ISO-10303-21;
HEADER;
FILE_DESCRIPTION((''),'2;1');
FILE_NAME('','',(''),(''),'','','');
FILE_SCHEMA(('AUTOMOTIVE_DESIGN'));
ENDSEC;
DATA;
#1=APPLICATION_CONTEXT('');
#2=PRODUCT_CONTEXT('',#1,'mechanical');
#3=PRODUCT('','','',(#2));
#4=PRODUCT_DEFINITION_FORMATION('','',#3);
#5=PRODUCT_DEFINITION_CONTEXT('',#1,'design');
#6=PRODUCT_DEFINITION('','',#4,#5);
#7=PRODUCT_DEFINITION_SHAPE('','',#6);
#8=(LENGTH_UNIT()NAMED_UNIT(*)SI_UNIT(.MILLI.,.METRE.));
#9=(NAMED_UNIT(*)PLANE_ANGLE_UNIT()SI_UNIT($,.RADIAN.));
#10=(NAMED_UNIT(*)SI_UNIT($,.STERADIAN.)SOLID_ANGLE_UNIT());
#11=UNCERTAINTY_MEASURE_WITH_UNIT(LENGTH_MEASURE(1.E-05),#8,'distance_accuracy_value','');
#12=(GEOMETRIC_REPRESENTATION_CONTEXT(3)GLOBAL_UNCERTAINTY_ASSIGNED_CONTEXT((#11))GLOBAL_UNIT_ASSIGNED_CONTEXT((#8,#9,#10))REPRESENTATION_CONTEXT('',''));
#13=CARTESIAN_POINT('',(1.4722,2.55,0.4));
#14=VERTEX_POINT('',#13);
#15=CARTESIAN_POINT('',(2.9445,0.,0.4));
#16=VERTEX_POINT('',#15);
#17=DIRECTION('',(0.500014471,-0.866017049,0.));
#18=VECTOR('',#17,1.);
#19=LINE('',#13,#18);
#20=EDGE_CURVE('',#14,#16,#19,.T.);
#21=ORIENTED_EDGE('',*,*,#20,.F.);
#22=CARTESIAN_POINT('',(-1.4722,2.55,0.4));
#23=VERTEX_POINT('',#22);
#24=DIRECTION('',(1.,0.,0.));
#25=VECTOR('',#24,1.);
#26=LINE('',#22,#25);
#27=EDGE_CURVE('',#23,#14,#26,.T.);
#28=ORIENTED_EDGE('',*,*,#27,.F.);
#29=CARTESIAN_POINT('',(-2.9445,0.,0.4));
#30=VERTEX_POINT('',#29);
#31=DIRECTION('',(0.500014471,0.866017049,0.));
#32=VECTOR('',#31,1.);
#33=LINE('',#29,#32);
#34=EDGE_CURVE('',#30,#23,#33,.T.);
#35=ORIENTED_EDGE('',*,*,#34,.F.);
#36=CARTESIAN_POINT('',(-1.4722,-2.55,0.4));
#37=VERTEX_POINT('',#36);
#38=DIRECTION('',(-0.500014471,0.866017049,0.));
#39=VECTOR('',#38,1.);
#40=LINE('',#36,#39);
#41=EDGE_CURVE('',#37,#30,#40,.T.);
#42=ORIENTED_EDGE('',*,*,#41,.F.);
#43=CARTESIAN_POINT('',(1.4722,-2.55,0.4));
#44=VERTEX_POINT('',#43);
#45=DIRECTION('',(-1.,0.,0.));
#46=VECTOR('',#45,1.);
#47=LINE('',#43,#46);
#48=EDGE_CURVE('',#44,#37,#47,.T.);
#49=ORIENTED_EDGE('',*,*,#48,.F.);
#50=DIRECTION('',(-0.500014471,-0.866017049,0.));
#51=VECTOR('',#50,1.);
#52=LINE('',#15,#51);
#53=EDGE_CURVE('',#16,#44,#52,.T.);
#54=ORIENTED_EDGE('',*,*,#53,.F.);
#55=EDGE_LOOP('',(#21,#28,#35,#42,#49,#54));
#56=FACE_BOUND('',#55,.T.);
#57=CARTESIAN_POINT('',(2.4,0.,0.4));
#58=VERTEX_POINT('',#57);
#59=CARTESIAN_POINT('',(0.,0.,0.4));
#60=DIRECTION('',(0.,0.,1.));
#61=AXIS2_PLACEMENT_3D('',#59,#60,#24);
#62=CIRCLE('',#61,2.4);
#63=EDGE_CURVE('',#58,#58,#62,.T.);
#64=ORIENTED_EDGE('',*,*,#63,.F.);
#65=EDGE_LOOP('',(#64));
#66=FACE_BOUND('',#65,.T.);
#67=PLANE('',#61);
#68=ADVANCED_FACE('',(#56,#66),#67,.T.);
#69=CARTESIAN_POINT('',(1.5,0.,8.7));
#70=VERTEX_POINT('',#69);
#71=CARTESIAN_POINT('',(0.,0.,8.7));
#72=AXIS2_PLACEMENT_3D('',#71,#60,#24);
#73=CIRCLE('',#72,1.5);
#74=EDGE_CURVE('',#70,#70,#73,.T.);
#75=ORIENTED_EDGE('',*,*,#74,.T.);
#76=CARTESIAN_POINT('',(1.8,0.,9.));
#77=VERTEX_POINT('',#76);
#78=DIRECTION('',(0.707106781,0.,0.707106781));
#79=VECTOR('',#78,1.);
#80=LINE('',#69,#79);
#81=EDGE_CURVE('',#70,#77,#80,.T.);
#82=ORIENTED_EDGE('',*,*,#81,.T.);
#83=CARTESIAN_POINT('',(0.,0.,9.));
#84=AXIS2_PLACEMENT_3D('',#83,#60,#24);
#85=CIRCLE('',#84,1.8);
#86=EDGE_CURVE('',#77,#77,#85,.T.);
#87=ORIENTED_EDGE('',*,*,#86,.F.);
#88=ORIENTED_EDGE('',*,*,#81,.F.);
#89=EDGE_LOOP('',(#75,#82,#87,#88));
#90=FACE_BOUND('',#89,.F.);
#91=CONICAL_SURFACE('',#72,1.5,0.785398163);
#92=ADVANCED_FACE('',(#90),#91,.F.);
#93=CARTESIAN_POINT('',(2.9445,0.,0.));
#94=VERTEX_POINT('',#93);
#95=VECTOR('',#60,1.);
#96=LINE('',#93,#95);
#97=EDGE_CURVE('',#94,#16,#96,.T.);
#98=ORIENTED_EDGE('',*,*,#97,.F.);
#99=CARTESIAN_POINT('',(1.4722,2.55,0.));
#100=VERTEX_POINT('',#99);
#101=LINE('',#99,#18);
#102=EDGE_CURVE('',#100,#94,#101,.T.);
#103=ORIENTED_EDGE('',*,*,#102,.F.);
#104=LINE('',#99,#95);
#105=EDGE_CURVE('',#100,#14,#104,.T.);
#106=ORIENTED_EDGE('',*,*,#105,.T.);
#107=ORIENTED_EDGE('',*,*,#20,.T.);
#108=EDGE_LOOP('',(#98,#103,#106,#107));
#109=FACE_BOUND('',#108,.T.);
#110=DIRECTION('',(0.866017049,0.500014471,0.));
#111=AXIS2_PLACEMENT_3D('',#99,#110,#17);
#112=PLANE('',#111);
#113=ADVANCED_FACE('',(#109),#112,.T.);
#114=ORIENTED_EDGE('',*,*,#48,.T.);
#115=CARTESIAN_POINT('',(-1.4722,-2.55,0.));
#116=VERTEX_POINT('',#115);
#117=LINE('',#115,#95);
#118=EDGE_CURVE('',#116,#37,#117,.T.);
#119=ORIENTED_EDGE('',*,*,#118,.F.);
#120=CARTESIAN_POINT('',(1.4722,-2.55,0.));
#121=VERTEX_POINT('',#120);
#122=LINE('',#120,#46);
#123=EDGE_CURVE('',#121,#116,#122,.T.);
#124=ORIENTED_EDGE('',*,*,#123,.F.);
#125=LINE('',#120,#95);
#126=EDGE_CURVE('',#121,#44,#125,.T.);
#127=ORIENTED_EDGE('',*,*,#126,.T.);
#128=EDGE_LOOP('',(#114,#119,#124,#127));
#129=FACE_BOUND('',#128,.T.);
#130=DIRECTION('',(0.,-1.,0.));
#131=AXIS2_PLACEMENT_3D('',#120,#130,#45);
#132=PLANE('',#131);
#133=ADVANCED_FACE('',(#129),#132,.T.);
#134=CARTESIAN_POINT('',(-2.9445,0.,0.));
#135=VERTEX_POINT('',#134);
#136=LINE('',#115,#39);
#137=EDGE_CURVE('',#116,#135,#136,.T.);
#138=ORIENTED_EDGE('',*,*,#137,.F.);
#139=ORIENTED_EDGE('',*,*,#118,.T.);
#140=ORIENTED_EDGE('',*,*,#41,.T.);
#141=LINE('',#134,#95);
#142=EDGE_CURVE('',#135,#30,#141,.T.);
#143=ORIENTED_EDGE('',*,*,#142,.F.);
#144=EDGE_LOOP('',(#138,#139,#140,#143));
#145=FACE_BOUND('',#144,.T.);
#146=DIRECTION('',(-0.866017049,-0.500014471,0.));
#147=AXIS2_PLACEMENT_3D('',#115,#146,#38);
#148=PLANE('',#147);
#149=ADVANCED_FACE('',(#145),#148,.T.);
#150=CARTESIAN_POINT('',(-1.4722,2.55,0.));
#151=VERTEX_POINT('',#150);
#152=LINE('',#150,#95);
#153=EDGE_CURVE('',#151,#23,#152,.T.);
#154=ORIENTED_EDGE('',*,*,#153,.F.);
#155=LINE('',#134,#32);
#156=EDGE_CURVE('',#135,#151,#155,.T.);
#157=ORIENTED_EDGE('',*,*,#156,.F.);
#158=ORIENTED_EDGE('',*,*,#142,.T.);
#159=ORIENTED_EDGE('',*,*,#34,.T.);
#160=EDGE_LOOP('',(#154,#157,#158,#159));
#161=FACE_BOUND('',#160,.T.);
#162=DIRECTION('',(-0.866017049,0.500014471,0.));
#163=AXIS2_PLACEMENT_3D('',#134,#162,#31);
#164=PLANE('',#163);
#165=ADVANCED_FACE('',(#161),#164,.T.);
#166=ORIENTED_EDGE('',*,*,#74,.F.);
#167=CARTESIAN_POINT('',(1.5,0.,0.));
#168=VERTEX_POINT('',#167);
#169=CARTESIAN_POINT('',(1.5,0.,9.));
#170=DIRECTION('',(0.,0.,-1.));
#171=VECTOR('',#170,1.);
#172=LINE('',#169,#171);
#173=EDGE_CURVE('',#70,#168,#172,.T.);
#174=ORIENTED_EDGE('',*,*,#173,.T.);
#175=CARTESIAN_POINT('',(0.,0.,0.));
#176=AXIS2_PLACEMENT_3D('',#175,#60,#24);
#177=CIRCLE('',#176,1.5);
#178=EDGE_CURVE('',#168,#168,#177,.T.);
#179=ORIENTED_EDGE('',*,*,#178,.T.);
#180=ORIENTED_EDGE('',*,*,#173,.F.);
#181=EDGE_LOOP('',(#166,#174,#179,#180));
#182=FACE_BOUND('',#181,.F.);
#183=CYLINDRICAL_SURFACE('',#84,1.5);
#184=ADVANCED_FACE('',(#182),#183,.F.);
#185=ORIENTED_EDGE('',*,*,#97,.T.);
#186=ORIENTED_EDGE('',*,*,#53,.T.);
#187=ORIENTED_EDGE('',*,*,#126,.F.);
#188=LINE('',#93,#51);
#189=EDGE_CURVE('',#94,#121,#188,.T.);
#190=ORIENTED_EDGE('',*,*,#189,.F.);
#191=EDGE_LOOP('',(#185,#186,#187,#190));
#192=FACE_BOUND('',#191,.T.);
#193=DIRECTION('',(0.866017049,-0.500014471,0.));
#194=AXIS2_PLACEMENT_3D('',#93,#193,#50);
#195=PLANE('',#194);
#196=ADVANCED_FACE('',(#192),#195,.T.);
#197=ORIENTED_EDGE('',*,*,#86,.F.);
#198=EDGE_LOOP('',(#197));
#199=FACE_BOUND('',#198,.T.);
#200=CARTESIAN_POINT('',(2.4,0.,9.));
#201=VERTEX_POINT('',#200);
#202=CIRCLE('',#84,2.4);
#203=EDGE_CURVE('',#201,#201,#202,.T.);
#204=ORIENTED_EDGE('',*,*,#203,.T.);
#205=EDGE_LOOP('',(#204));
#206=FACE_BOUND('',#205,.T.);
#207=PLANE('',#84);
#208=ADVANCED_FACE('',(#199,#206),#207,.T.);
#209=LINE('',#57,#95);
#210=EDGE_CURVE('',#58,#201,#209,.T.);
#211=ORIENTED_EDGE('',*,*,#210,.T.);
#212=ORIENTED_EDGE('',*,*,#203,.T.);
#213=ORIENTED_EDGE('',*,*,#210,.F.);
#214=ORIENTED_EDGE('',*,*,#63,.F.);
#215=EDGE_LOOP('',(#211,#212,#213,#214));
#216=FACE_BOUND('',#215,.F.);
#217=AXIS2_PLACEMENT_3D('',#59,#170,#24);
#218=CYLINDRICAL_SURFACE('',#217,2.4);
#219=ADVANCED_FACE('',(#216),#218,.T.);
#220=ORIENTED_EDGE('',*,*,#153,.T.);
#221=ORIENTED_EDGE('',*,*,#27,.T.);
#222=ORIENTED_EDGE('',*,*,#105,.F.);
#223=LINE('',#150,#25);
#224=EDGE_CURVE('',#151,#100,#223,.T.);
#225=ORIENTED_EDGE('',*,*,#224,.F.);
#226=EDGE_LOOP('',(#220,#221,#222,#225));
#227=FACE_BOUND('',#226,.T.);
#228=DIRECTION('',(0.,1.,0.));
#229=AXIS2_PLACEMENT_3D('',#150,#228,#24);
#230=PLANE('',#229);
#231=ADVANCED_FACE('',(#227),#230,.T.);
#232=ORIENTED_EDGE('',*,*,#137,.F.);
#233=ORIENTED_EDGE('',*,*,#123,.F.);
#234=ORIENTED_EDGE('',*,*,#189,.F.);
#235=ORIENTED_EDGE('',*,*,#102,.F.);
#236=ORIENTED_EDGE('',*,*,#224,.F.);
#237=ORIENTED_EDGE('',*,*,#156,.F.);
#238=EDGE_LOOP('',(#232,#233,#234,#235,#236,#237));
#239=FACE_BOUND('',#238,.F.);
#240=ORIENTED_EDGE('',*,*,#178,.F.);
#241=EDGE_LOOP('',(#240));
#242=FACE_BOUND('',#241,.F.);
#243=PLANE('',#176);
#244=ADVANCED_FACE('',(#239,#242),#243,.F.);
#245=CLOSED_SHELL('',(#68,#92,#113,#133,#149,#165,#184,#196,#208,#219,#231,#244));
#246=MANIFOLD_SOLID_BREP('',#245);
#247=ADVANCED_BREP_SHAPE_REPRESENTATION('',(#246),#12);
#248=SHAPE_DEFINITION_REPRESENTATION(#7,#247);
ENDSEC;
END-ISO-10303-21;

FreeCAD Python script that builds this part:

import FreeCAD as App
import Part
import Sketcher
from FreeCAD import Vector
Q = App.Units.Quantity


def edges_at(feature, points):
    """Names of the edges that pass closest to the given points."""
    edges = feature.Shape.Edges
    near = lambda p: min(range(len(edges)), key=lambda i: edges[i].distToShape(Part.Vertex(*p))[0])
    return sorted({f"Edge{near(p) + 1}" for p in points})

doc = App.newDocument("Part")
body = doc.addObject("PartDesign::Body", "Body")

# Sketch on XY plane
sketch1 = body.newObject("Sketcher::SketchObject", "Sketch")
sketch1.AttachmentSupport = (doc.getObject("XY_Plane"), [""])
sketch1.MapMode = "FlatFace"
sketch1.addGeometry([
    Part.LineSegment(Vector(2.9445, 0, 0), Vector(1.4722, 2.55, 0)),  # 0
    Part.LineSegment(Vector(1.4722, 2.55, 0), Vector(-1.4722, 2.55, 0)),  # 1
    Part.LineSegment(Vector(-1.4722, 2.55, 0), Vector(-2.9445, 0, 0)),  # 2
    Part.LineSegment(Vector(-2.9445, 0, 0), Vector(-1.4722, -2.55, 0)),  # 3
    Part.LineSegment(Vector(-1.4722, -2.55, 0), Vector(1.4722, -2.55, 0)),  # 4
    Part.LineSegment(Vector(1.4722, -2.55, 0), Vector(2.9445, 0, 0)),  # 5
], False)
sketch1.addConstraint([
    Sketcher.Constraint("Coincident", 0, 2, 1, 1),
    Sketcher.Constraint("Coincident", 1, 2, 2, 1),
    Sketcher.Constraint("Coincident", 2, 2, 3, 1),
    Sketcher.Constraint("Coincident", 3, 2, 4, 1),
    Sketcher.Constraint("Coincident", 4, 2, 5, 1),
    Sketcher.Constraint("Coincident", 5, 2, 0, 1),
    Sketcher.Constraint("Horizontal", 1),
    Sketcher.Constraint("Horizontal", 4),
    Sketcher.Constraint("Symmetric", 0, 2, 3, 2, -1, 1),
    Sketcher.Constraint("Symmetric", 2, 2, 5, 2, -1, 1),
    Sketcher.Constraint("PointOnObject", 2, 2, -1),
    Sketcher.Constraint("Parallel", 2, 5),
    Sketcher.Constraint("Vertical", 1, 2, 3, 2),
    Sketcher.Constraint("DistanceY", 3, 2, 1, 2, Q("5.1 mm")),
    Sketcher.Constraint("Angle", 0, Q("120.001 deg")),
    Sketcher.Constraint("DistanceX", 1, 2, 1, 1, Q("2.9444 mm")),
])
pad1 = body.newObject("PartDesign::Pad", "Pad")
pad1.Profile = sketch1
pad1.Length = 0.4

# Sketch on XY plane
sketch2 = body.newObject("Sketcher::SketchObject", "Sketch001")
sketch2.AttachmentSupport = (doc.getObject("XY_Plane"), [""])
sketch2.MapMode = "FlatFace"
sketch2.AttachmentOffset = App.Placement(Vector(0, 0, 0.4), App.Rotation())
sketch2.addGeometry(Part.Circle(Vector(0, 0, 0), Vector(0, 0, 1), 2.4), False)
sketch2.addConstraint([
    Sketcher.Constraint("Coincident", 0, 3, -1, 1),
    Sketcher.Constraint("Diameter", 0, Q("4.8 mm")),
])
pad2 = body.newObject("PartDesign::Pad", "Pad001")
pad2.Profile = sketch2
pad2.Length = 8.6

# Sketch on XY plane
sketch3 = body.newObject("Sketcher::SketchObject", "Sketch002")
sketch3.AttachmentSupport = (doc.getObject("XY_Plane"), [""])
sketch3.MapMode = "FlatFace"
sketch3.AttachmentOffset = App.Placement(Vector(0, 0, 9), App.Rotation())
sketch3.addGeometry(Part.Circle(Vector(0, 0, 0), Vector(0, 0, 1), 1.5), False)
sketch3.addConstraint([
    Sketcher.Constraint("Coincident", 0, 3, -1, 1),
    Sketcher.Constraint("Diameter", 0, Q("3 mm")),
])
pocket1 = body.newObject("PartDesign::Pocket", "Pocket")
pocket1.Profile = sketch3
pocket1.Length = 10
doc.recompute()

chamfer = body.newObject("PartDesign::Chamfer", "Chamfer")
chamfer.Base = (pocket1, edges_at(pocket1, [(-1.5, 0, 9)]))
chamfer.Size = 0.3

doc.recompute()
